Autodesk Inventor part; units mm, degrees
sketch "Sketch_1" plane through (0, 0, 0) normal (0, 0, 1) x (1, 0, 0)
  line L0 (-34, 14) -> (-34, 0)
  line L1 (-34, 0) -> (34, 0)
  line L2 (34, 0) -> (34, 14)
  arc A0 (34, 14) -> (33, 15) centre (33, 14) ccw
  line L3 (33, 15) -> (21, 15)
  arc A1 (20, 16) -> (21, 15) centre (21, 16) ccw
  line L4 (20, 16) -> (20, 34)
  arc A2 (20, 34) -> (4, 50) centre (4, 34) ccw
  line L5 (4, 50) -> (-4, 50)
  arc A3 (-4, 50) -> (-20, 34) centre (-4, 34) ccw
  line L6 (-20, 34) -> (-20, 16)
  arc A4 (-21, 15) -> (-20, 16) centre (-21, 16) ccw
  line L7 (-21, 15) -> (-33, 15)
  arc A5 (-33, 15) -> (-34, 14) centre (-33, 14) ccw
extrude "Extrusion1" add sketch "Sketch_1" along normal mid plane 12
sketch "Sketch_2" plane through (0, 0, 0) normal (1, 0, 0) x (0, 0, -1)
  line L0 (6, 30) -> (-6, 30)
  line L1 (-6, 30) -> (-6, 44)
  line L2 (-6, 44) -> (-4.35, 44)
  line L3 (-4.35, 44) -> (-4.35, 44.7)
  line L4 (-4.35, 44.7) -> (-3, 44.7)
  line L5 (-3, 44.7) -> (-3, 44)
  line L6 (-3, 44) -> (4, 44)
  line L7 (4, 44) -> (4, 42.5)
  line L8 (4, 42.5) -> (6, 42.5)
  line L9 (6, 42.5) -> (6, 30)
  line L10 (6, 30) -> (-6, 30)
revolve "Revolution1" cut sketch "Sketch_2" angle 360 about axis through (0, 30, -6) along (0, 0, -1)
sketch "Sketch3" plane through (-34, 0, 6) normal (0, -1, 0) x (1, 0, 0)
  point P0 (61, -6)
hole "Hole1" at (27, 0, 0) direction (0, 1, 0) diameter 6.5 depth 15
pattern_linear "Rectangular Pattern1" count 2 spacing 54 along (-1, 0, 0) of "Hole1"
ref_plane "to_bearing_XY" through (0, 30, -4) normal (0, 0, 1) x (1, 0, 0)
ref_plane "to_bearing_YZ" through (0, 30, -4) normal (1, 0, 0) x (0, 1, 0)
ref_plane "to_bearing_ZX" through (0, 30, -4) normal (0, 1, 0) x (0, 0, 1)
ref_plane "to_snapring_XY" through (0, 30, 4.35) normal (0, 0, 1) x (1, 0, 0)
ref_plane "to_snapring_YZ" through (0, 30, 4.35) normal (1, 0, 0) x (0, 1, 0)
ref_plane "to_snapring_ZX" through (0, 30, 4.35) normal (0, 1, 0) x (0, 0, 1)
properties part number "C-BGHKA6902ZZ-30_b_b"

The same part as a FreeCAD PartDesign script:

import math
import FreeCAD as App
import Part
import Sketcher
from FreeCAD import Vector

doc = App.newDocument("Part")
body = doc.addObject("PartDesign::Body", "Body")

# Sketch on XY plane
sketch1 = body.newObject("Sketcher::SketchObject", "Sketch")
sketch1.AttachmentSupport = (doc.getObject("XY_Plane"), [""])
sketch1.MapMode = "FlatFace"
sketch1.addGeometry(Part.ArcOfCircle(Part.Circle(Vector(-33, 14, 0), Vector(0, 0, 1), 1), math.radians(90), math.radians(180)), False)
sketch1.addGeometry(Part.LineSegment(Vector(-34, 14, 0), Vector(-34, 0, 0)), False)
sketch1.addGeometry(Part.LineSegment(Vector(-34, 0, 0), Vector(34, 0, 0)), False)
sketch1.addGeometry(Part.LineSegment(Vector(34, 0, 0), Vector(34, 14, 0)), False)
sketch1.addGeometry(Part.ArcOfCircle(Part.Circle(Vector(33, 14, 0), Vector(0, 0, 1), 1), math.radians(0), math.radians(90)), False)
sketch1.addGeometry(Part.LineSegment(Vector(33, 15, 0), Vector(21, 15, 0)), False)
sketch1.addGeometry(Part.ArcOfCircle(Part.Circle(Vector(21, 16, 0), Vector(0, 0, 1), 1), math.radians(180), math.radians(270)), False)
sketch1.addGeometry(Part.LineSegment(Vector(20, 16, 0), Vector(20, 34, 0)), False)
sketch1.addGeometry(Part.ArcOfCircle(Part.Circle(Vector(4, 34, 0), Vector(0, 0, 1), 16), math.radians(0), math.radians(90)), False)
sketch1.addGeometry(Part.LineSegment(Vector(4, 50, 0), Vector(-4, 50, 0)), False)
sketch1.addGeometry(Part.ArcOfCircle(Part.Circle(Vector(-4, 34, 0), Vector(0, 0, 1), 16), math.radians(90), math.radians(180)), False)
sketch1.addGeometry(Part.LineSegment(Vector(-20, 34, 0), Vector(-20, 16, 0)), False)
sketch1.addGeometry(Part.ArcOfCircle(Part.Circle(Vector(-21, 16, 0), Vector(0, 0, 1), 1), math.radians(-90), math.radians(0)), False)
sketch1.addGeometry(Part.LineSegment(Vector(-21, 15, 0), Vector(-33, 15, 0)), False)
sketch1.addConstraint(Sketcher.Constraint("Tangent", 0, 2, 1, 1))
sketch1.addConstraint(Sketcher.Constraint("Coincident", 1, 2, 2, 1))
sketch1.addConstraint(Sketcher.Constraint("Coincident", 2, 2, 3, 1))
sketch1.addConstraint(Sketcher.Constraint("Tangent", 3, 2, 4, 1))
sketch1.addConstraint(Sketcher.Constraint("Tangent", 4, 2, 5, 1))
sketch1.addConstraint(Sketcher.Constraint("Tangent", 5, 2, 6, 2))
sketch1.addConstraint(Sketcher.Constraint("Tangent", 6, 1, 7, 1))
sketch1.addConstraint(Sketcher.Constraint("Tangent", 7, 2, 8, 1))
sketch1.addConstraint(Sketcher.Constraint("Tangent", 8, 2, 9, 1))
sketch1.addConstraint(Sketcher.Constraint("Tangent", 9, 2, 10, 1))
sketch1.addConstraint(Sketcher.Constraint("Tangent", 10, 2, 11, 1))
sketch1.addConstraint(Sketcher.Constraint("Tangent", 11, 2, 12, 2))
sketch1.addConstraint(Sketcher.Constraint("Tangent", 12, 1, 13, 1))
sketch1.addConstraint(Sketcher.Constraint("Tangent", 13, 2, 0, 1))
sketch1.addConstraint(Sketcher.Constraint("Vertical", 1))
sketch1.addConstraint(Sketcher.Constraint("Horizontal", 2))
sketch1.addConstraint(Sketcher.Constraint("Vertical", 3))
sketch1.addConstraint(Sketcher.Constraint("Horizontal", 5))
sketch1.addConstraint(Sketcher.Constraint("Vertical", 7))
sketch1.addConstraint(Sketcher.Constraint("Horizontal", 9))
sketch1.addConstraint(Sketcher.Constraint("Vertical", 11))
sketch1.addConstraint(Sketcher.Constraint("Horizontal", 13))
sketch1.addConstraint(Sketcher.Constraint("Equal", 0, 4))
sketch1.addConstraint(Sketcher.Constraint("Equal", 4, 6))
sketch1.addConstraint(Sketcher.Constraint("Equal", 8, 10))
sketch1.addConstraint(Sketcher.Constraint("Equal", 6, 12))
sketch1.addConstraint(Sketcher.Constraint("Symmetric", 1, 2, 2, 2, -1, 1))
sketch1.addConstraint(Sketcher.Constraint("Symmetric", 6, 3, 12, 3, -2))
sketch1.addConstraint(Sketcher.Constraint("Radius", 0, 1.0))
sketch1.addConstraint(Sketcher.Constraint("Radius", 8, 16.0))
sketch1.addConstraint(Sketcher.Constraint("DistanceX", 2, 1, 2, 2, 68.0))
sketch1.addConstraint(Sketcher.Constraint("DistanceX", 5, 2, 5, 1, 12.0))
sketch1.addConstraint(Sketcher.Constraint("DistanceY", 1, 2, 1, 1, 14.0))
sketch1.addConstraint(Sketcher.Constraint("DistanceY", 7, 1, 7, 2, 18.0))
pad1 = body.newObject("PartDesign::Pad", "Pad")
pad1.Profile = sketch1
pad1.Length = 12
pad1.Midplane = True

# Sketch on YZ plane
sketch2 = body.newObject("Sketcher::SketchObject", "Sketch001")
sketch2.AttachmentSupport = (doc.getObject("YZ_Plane"), [""])
sketch2.MapMode = "FlatFace"
sketch2.addGeometry(Part.LineSegment(Vector(30, 6, 0), Vector(30, -6, 0)), False)
sketch2.addGeometry(Part.LineSegment(Vector(30, -6, 0), Vector(42.5, -6, 0)), False)
sketch2.addGeometry(Part.LineSegment(Vector(42.5, -6, 0), Vector(42.5, -4, 0)), False)
sketch2.addGeometry(Part.LineSegment(Vector(42.5, -4, 0), Vector(44, -4, 0)), False)
sketch2.addGeometry(Part.LineSegment(Vector(44, -4, 0), Vector(44, 3, 0)), False)
sketch2.addGeometry(Part.LineSegment(Vector(44, 3, 0), Vector(44.7, 3, 0)), False)
sketch2.addGeometry(Part.LineSegment(Vector(44.7, 3, 0), Vector(44.7, 4.3, 0)), False)
sketch2.addGeometry(Part.LineSegment(Vector(44.7, 4.3, 0), Vector(44, 4.3, 0)), False)
sketch2.addGeometry(Part.LineSegment(Vector(44, 4.3, 0), Vector(44, 6, 0)), False)
sketch2.addGeometry(Part.LineSegment(Vector(44, 6, 0), Vector(30, 6, 0)), False)
sketch2.addGeometry(Part.LineSegment(Vector(30, 6, 0), Vector(30, -6, 0)), True)  # axis
sketch2.addConstraint(Sketcher.Constraint("Coincident", 0, 2, 1, 1))
sketch2.addConstraint(Sketcher.Constraint("Coincident", 1, 2, 2, 1))
sketch2.addConstraint(Sketcher.Constraint("Coincident", 2, 2, 3, 1))
sketch2.addConstraint(Sketcher.Constraint("Coincident", 3, 2, 4, 1))
sketch2.addConstraint(Sketcher.Constraint("Coincident", 4, 2, 5, 1))
sketch2.addConstraint(Sketcher.Constraint("Coincident", 5, 2, 6, 1))
sketch2.addConstraint(Sketcher.Constraint("Coincident", 6, 2, 7, 1))
sketch2.addConstraint(Sketcher.Constraint("Coincident", 7, 2, 8, 1))
sketch2.addConstraint(Sketcher.Constraint("Coincident", 8, 2, 9, 1))
sketch2.addConstraint(Sketcher.Constraint("Coincident", 9, 2, 0, 1))
sketch2.addConstraint(Sketcher.Constraint("Vertical", 0))
sketch2.addConstraint(Sketcher.Constraint("Horizontal", 1))
sketch2.addConstraint(Sketcher.Constraint("Vertical", 2))
sketch2.addConstraint(Sketcher.Constraint("Horizontal", 3))
sketch2.addConstraint(Sketcher.Constraint("Vertical", 4))
sketch2.addConstraint(Sketcher.Constraint("Horizontal", 5))
sketch2.addConstraint(Sketcher.Constraint("Vertical", 6))
sketch2.addConstraint(Sketcher.Constraint("Horizontal", 7))
sketch2.addConstraint(Sketcher.Constraint("Vertical", 8))
sketch2.addConstraint(Sketcher.Constraint("Horizontal", 9))
sketch2.addConstraint(Sketcher.Constraint("Vertical", 10))
sketch2.addConstraint(Sketcher.Constraint("Coincident", 10, 1, 9, 2))
sketch2.addConstraint(Sketcher.Constraint("Horizontal", 1, 2, 10, 2))
sketch2.addConstraint(Sketcher.Constraint("Vertical", 4, 2, 7, 2))
sketch2.addConstraint(Sketcher.Constraint("DistanceX", 9, 2, 9, 1, 14.0))
sketch2.addConstraint(Sketcher.Constraint("DistanceY", 0, 2, 0, 1, 12.0))
sketch2.addConstraint(Sketcher.Constraint("DistanceY", 2, 1, 2, 2, 2.0))
sketch2.addConstraint(Sketcher.Constraint("DistanceY", 4, 1, 4, 2, 7.0))
sketch2.addConstraint(Sketcher.Constraint("DistanceX", 1, 1, 1, 2, 12.5))
sketch2.addConstraint(Sketcher.Constraint("DistanceX", 5, 1, 5, 2, 0.7))
sketch2.addConstraint(Sketcher.Constraint("DistanceX", -1, 1, 0, 2, 30.0))
sketch2.addConstraint(Sketcher.Constraint("DistanceY", 0, 2, -1, 1, 6.0))
sketch2.addConstraint(Sketcher.Constraint("DistanceY", 6, 1, 6, 2, 1.35))
groove = body.newObject("PartDesign::Groove", "Groove")
groove.Profile = sketch2
groove.ReferenceAxis = (sketch2, ["Axis0"])
groove.Angle = 360

# Sketch on XZ plane
sketch3 = body.newObject("Sketcher::SketchObject", "Sketch002")
sketch3.AttachmentSupport = (doc.getObject("XZ_Plane"), [""])
sketch3.MapMode = "FlatFace"
sketch3.addGeometry(Part.Circle(Vector(27, 0, 0), Vector(0, 0, 1), 3.2), False)
sketch3.addConstraint(Sketcher.Constraint("PointOnObject", 0, 3, -1))
sketch3.addConstraint(Sketcher.Constraint("Diameter", 0, 6.5))
sketch3.addConstraint(Sketcher.Constraint("DistanceX", -1, 1, 0, 3, 27.0))
doc.recompute()
hole = body.newObject("PartDesign::Hole", "Hole")
hole.Profile = sketch3
hole.ThreadType = "None"
hole.Diameter = 6.5
hole.DepthType = "Dimension"
hole.Depth = 15
hole.DrillPoint = "Flat"
doc.recompute()

linearpattern = body.newObject("PartDesign::LinearPattern", "LinearPattern")
linearpattern.Originals = [hole]
linearpattern.Direction = (doc.getObject("X_Axis"), [""])
linearpattern.Mode = "offset"
linearpattern.Offset = 54
linearpattern.Occurrences = 2
linearpattern.Reversed = True
body.Tip = linearpattern

doc.recompute()
